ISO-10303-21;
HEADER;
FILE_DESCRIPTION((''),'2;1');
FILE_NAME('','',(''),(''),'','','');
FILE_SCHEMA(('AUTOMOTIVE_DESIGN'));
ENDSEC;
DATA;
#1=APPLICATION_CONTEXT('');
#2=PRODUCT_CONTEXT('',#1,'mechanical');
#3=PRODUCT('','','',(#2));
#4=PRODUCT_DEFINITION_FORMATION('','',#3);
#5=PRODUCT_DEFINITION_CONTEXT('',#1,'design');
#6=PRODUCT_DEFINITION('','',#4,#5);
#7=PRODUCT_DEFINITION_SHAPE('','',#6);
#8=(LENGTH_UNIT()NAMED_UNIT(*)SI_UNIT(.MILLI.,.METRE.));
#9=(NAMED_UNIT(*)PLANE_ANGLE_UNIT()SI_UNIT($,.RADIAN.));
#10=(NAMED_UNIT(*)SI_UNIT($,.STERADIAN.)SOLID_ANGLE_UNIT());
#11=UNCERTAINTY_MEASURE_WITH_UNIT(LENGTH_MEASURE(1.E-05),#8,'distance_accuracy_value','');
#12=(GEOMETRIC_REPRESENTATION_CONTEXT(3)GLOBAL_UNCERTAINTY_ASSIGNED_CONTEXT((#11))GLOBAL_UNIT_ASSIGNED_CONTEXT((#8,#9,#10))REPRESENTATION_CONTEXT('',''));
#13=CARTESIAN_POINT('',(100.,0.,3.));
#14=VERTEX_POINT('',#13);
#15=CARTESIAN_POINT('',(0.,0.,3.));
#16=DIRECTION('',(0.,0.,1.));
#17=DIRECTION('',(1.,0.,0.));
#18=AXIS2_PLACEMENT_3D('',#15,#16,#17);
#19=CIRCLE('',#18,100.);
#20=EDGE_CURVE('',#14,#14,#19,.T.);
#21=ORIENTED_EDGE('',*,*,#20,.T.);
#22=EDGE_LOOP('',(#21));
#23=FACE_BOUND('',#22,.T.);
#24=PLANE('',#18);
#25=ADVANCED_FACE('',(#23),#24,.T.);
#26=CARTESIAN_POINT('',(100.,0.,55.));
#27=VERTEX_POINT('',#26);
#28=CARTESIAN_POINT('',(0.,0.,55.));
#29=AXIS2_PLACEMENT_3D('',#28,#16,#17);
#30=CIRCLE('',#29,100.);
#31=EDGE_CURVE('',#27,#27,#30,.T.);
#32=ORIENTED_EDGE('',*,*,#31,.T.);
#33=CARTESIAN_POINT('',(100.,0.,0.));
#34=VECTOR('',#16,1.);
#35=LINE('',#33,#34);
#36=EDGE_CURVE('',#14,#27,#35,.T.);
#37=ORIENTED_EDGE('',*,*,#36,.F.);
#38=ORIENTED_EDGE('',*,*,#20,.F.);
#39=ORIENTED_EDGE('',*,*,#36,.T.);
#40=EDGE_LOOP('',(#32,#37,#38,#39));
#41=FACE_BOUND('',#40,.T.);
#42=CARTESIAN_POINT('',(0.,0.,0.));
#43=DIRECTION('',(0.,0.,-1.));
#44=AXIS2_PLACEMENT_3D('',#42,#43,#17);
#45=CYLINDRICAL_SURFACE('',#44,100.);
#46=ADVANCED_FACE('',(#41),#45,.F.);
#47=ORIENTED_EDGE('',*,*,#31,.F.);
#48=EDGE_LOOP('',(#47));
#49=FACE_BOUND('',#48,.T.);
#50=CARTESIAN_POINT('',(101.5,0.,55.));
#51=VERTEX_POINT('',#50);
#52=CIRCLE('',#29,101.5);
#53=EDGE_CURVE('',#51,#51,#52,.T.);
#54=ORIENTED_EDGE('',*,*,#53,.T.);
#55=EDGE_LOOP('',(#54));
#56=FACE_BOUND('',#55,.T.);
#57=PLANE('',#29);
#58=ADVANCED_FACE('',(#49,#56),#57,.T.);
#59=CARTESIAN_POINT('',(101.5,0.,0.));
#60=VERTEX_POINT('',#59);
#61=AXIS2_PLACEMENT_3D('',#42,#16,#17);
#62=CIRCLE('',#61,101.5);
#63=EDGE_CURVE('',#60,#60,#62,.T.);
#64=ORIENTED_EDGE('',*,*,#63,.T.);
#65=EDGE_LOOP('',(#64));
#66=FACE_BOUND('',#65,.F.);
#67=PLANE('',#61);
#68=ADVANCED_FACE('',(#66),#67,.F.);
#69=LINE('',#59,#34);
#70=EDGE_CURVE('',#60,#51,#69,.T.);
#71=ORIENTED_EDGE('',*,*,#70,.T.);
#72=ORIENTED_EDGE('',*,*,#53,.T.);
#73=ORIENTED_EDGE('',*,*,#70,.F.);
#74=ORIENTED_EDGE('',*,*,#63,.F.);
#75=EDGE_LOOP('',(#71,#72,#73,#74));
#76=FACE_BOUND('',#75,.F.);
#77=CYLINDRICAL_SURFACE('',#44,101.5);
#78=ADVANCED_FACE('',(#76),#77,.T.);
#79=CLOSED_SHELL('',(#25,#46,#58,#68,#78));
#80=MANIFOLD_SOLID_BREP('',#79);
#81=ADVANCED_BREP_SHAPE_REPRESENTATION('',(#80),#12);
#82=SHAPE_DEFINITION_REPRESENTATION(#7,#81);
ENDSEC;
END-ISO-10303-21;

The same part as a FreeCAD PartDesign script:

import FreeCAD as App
import Part
import Sketcher
from FreeCAD import Vector
Q = App.Units.Quantity

doc = App.newDocument("Part")
params = doc.addObject("Spreadsheet::Sheet", "Params")
for row, (alias, value) in enumerate([
    ("sketch1_diameter", "200 mm"),
    ("pad1_length", "3 mm"),
    ("sketch2_diameter", "203 mm"),
    ("sketch2_diameter2", "200 mm"),
    ("pad2_length", "55 mm"),
], start=1):
    params.set(f"A{row}", alias)
    params.set(f"B{row}", "=" + value)
    params.setAlias(f"B{row}", alias)

body = doc.addObject("PartDesign::Body", "Body")

# Sketch on XY plane
sketch1 = body.newObject("Sketcher::SketchObject", "Sketch")
sketch1.AttachmentSupport = (doc.getObject("XY_Plane"), [""])
sketch1.MapMode = "FlatFace"
sketch1.addGeometry(Part.Circle(Vector(0, 0, 0), Vector(0, 0, 1), 100), False)
sketch1.addConstraint(Sketcher.Constraint("Coincident", 0, 3, -1, 1))
sketch1.addConstraint(Sketcher.Constraint("Diameter", 0, Q("200 mm")))
sketch1.setExpression("Constraints[1]", "Params.sketch1_diameter")
pad1 = body.newObject("PartDesign::Pad", "Pad")
pad1.Profile = sketch1
pad1.setExpression("Length", "Params.pad1_length")

# Sketch on XY plane
sketch2 = body.newObject("Sketcher::SketchObject", "Sketch001")
sketch2.AttachmentSupport = (doc.getObject("XY_Plane"), [""])
sketch2.MapMode = "FlatFace"
sketch2.addGeometry(Part.Circle(Vector(0, 0, 0), Vector(0, 0, 1), 102), False)
sketch2.addGeometry(Part.Circle(Vector(0, 0, 0), Vector(0, 0, 1), 100), False)
sketch2.addConstraint(Sketcher.Constraint("Coincident", 0, 3, -1, 1))
sketch2.addConstraint(Sketcher.Constraint("Coincident", 1, 3, -1, 1))
sketch2.addConstraint(Sketcher.Constraint("Diameter", 0, Q("203 mm")))
sketch2.addConstraint(Sketcher.Constraint("Diameter", 1, Q("200 mm")))
sketch2.setExpression("Constraints[2]", "Params.sketch2_diameter")
sketch2.setExpression("Constraints[3]", "Params.sketch2_diameter2")
pad2 = body.newObject("PartDesign::Pad", "Pad001")
pad2.Profile = sketch2
pad2.setExpression("Length", "Params.pad2_length")

doc.recompute()
